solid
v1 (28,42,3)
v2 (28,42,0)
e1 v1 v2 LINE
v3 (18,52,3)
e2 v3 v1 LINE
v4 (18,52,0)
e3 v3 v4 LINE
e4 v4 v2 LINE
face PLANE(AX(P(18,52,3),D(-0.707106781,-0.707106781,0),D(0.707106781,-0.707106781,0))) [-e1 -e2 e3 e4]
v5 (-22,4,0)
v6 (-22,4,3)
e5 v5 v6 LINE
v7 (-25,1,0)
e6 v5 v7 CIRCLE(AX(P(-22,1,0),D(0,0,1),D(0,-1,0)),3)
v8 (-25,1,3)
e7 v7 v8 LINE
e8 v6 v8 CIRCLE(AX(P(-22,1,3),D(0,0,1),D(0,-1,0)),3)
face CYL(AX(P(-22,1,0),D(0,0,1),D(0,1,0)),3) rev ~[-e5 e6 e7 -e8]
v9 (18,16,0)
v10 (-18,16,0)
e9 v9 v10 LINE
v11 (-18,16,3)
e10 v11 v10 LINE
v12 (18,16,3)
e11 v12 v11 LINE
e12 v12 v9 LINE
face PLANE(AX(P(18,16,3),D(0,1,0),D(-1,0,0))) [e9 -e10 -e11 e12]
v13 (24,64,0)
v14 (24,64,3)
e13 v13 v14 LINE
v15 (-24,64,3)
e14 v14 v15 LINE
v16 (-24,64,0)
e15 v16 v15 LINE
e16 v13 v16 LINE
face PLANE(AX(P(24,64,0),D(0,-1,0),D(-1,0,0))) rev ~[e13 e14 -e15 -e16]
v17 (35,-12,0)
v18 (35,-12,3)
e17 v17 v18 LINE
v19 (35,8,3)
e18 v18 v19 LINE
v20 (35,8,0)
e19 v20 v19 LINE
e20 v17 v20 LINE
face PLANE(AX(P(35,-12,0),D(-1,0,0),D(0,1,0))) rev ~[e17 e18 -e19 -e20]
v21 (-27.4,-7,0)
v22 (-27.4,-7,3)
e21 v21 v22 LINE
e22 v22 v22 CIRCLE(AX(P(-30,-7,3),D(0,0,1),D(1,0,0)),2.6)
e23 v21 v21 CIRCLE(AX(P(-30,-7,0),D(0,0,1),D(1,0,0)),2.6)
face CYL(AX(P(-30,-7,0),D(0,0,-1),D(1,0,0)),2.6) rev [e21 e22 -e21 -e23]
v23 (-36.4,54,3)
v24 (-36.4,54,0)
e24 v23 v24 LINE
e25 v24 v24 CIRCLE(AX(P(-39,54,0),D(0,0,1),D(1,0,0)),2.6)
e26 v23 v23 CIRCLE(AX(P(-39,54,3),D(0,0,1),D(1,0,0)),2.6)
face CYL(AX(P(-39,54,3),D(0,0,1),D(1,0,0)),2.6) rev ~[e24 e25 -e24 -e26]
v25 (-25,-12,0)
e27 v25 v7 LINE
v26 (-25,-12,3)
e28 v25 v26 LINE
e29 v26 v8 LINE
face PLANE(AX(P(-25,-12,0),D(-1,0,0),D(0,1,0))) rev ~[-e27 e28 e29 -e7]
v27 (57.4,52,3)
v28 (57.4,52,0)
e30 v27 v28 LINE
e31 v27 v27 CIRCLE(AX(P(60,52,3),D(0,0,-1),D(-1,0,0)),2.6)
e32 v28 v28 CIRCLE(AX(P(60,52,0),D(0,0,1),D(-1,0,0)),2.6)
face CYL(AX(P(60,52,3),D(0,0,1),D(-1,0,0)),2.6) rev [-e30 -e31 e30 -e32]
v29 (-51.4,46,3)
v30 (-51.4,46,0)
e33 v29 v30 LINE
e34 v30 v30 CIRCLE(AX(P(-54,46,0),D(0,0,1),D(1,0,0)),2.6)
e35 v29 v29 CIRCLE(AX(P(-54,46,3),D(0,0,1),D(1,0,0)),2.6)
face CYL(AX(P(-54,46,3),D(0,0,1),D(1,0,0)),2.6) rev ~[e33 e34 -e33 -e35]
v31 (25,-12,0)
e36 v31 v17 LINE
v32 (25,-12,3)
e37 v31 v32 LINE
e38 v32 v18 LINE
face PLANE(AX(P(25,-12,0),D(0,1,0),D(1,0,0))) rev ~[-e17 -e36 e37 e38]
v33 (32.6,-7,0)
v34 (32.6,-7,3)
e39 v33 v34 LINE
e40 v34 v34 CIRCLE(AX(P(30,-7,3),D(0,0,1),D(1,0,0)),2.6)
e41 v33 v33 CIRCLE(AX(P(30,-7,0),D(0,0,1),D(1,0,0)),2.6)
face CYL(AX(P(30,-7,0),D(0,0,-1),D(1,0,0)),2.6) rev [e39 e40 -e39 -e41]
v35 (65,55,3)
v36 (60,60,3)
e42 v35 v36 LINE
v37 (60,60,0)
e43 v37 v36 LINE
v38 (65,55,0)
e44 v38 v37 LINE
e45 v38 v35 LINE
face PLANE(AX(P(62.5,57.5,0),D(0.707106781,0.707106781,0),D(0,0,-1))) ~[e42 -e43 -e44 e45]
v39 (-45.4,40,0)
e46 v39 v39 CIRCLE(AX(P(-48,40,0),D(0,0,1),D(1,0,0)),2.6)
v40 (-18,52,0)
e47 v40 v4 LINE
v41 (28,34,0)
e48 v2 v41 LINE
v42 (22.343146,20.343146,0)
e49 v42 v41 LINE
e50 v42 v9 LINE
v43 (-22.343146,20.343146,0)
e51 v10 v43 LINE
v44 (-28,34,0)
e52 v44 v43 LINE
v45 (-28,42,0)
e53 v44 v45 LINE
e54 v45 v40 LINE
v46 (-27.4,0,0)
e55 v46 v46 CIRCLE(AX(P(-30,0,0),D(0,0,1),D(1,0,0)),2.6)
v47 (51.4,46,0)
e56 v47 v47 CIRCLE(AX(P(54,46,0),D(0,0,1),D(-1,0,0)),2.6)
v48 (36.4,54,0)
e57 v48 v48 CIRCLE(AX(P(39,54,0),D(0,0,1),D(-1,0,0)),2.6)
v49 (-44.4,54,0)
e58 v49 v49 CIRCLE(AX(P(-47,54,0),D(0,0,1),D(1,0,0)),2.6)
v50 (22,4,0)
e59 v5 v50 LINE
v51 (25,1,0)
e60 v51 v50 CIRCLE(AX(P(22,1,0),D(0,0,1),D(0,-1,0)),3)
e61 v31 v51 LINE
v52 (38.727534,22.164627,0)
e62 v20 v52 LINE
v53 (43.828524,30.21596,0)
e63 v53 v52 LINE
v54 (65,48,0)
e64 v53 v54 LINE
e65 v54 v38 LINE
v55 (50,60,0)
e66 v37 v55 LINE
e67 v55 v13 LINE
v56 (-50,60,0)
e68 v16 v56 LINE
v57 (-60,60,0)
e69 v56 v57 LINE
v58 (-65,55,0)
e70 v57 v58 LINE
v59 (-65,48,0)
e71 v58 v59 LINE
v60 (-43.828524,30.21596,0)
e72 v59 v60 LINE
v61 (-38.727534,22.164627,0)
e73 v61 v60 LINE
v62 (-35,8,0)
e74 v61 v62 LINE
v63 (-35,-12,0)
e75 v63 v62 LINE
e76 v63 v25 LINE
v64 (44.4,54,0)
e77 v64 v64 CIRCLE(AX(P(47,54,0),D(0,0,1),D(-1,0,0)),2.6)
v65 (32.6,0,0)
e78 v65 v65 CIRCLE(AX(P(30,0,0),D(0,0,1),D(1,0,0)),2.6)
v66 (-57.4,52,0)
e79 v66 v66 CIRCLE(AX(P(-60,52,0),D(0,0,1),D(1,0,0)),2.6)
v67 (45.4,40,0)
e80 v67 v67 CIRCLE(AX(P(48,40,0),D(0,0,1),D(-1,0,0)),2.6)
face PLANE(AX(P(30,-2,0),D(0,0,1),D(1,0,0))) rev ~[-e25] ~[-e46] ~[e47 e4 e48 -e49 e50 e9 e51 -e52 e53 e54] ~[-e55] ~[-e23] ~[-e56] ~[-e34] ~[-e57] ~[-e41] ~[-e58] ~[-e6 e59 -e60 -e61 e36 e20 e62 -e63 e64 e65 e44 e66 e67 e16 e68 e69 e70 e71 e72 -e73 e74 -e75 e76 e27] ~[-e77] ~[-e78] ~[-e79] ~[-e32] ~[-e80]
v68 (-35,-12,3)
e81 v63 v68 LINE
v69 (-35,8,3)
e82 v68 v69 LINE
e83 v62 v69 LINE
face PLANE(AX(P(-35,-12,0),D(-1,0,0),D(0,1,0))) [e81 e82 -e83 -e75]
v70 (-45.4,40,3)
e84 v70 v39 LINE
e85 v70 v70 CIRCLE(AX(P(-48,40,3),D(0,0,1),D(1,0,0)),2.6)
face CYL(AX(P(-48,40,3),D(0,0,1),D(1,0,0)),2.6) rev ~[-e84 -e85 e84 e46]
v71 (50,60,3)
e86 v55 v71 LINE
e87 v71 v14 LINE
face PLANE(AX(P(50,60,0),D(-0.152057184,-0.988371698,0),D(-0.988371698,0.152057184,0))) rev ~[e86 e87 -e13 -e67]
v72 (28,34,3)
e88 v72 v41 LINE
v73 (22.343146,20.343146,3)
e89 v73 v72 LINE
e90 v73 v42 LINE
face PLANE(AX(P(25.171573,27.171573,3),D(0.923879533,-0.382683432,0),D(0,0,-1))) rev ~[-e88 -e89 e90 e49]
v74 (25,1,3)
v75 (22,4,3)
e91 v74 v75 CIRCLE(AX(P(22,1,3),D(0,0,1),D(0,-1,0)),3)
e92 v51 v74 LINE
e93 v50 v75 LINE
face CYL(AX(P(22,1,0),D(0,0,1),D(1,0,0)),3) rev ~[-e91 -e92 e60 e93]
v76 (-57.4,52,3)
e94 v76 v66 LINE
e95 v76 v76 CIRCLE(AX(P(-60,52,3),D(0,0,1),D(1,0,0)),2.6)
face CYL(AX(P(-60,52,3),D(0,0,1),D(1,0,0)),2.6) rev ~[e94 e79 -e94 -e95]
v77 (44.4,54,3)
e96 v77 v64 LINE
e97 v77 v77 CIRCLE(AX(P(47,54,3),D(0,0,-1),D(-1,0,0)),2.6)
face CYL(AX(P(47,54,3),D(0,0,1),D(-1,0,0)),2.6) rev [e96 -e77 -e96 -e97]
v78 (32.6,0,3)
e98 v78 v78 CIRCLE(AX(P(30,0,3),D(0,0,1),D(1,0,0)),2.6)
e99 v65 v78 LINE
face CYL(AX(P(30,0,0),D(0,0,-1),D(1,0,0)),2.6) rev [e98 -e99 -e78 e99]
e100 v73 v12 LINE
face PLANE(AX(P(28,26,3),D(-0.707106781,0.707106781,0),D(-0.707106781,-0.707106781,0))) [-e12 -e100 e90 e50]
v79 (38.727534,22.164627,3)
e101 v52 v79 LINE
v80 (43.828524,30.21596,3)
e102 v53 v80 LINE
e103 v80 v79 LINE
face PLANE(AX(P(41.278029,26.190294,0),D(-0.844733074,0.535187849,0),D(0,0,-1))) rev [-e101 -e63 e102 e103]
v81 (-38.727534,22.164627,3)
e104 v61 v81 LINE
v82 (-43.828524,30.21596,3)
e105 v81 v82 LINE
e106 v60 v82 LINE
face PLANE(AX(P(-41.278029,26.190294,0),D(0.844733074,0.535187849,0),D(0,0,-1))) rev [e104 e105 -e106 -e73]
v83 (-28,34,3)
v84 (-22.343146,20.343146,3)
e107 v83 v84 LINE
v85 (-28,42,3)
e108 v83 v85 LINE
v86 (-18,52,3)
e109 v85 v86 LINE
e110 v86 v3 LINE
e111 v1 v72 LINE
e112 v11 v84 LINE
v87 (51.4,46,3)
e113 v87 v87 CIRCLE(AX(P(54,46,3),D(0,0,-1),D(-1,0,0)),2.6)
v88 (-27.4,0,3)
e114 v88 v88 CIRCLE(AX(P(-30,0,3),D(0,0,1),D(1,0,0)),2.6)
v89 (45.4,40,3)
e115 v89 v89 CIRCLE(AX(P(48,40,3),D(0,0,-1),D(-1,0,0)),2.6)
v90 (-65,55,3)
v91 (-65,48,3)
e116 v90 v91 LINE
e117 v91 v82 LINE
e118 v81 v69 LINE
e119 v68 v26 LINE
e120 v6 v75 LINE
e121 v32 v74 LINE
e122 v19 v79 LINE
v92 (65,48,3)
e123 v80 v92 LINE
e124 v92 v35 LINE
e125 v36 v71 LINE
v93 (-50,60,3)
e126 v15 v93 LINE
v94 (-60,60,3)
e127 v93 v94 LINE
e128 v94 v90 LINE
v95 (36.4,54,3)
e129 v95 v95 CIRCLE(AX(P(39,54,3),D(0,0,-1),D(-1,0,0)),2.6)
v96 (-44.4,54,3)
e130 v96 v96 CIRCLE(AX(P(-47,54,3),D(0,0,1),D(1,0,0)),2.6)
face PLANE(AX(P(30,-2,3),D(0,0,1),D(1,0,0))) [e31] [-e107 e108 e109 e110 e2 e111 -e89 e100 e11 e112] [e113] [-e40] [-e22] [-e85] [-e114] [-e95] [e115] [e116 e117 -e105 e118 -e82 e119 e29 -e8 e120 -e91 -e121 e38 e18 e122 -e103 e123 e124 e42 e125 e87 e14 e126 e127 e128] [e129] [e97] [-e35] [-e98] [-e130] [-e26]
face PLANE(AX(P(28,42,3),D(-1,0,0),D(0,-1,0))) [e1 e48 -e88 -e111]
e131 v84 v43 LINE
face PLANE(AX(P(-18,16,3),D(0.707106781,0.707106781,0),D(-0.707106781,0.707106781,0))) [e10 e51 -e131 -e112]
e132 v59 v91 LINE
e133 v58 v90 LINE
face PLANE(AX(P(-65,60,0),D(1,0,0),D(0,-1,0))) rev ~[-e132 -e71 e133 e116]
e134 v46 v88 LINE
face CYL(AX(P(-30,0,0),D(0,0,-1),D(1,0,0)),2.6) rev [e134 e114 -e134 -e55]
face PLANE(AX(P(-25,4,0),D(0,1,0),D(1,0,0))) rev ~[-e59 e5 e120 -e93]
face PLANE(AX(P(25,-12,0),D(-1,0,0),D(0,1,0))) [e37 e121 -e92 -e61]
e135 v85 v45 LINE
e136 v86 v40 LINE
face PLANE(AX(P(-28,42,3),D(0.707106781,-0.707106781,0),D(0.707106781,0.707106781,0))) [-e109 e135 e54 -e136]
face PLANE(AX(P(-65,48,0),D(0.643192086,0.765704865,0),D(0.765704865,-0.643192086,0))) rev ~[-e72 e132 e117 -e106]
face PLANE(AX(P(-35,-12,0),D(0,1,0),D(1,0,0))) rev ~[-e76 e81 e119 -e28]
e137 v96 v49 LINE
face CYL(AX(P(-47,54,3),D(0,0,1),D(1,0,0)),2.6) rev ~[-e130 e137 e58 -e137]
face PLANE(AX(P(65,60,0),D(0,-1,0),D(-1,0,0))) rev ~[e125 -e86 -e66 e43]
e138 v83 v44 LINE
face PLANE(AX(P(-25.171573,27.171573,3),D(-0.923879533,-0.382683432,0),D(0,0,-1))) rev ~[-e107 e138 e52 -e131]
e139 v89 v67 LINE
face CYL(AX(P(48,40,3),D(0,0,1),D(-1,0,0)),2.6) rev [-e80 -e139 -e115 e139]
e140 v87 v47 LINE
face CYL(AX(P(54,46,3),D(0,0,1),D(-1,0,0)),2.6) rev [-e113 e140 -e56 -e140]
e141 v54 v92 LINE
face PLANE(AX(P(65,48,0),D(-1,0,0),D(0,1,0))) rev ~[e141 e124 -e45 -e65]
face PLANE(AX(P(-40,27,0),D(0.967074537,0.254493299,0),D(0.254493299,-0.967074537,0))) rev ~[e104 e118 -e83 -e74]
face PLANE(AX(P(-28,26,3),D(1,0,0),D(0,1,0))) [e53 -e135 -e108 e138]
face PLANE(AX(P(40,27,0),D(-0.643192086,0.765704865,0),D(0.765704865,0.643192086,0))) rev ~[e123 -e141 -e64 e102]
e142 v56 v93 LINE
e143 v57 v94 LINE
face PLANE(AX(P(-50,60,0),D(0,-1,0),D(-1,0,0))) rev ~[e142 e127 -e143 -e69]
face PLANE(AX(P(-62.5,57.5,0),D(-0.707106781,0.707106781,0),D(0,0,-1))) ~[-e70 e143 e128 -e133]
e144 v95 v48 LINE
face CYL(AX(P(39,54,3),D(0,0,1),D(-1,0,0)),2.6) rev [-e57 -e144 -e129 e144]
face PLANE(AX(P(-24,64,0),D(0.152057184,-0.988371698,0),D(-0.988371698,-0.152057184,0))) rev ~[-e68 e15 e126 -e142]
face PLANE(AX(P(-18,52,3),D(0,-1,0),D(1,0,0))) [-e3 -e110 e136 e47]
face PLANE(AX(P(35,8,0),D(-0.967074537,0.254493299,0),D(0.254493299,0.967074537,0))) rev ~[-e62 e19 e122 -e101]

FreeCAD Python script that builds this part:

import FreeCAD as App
import Part
import Sketcher

V = App.Vector
Q = App.Units.Quantity


def edges_at(feature, points):
    """Names of the edges that pass closest to the given points."""
    edges = feature.Shape.Edges
    near = lambda p: min(range(len(edges)), key=lambda i: edges[i].distToShape(Part.Vertex(*p))[0])
    return sorted({f"Edge{near(p) + 1}" for p in points})


def add_polygon(sketch, points):
    """Adds a closed chain of lines whose ends are joined by coincident constraints."""
    first, n = sketch.GeometryCount, len(points)
    for a, b in zip(points, points[1:] + points[:1]):
        sketch.addGeometry(Part.LineSegment(App.Vector(*a, 0), App.Vector(*b, 0)), False)
    for i in range(n):
        sketch.addConstraint(Sketcher.Constraint("Coincident", first + i, 2, first + (i + 1) % n, 1))

doc = App.newDocument("Part")
params = doc.addObject("Spreadsheet::Sheet", "Params")
for row, (alias, value) in enumerate([
    ("sketch1_diameter", "5.2 mm"),
    ("sketch1_width", "10 mm"),
    ("sketch1_width2", "50 mm"),
    ("sketch1_width3", "15 mm"),
    ("sketch1_width4", "48 mm"),
    ("pad1_length", "3 mm"),
    ("sketch2_width", "36 mm"),
    ("sketch2_height", "16 mm"),
    ("pocket1_length", "3 mm"),
    ("fillet_radius", "3 mm"),
    ("chamfer_size", "5 mm"),
    ("chamfer2_size", "5 mm"),
    ("chamfer3_size", "5 mm"),
    ("sketch3_diameter", "5.2 mm"),
    ("chamfer4_size", "8 mm"),
    ("chamfer5_size", "8 mm"),
], start=1):
    params.set(f"A{row}", alias)
    params.set(f"B{row}", "=" + value)
    params.setAlias(f"B{row}", alias)

body = doc.addObject("PartDesign::Body", "Body")

sketch1 = doc.addObject("Sketcher::SketchObject", "Sketch")
body.addObject(sketch1)
sketch1.AttachmentSupport = (doc.XY_Plane, [""])
sketch1.MapMode = "FlatFace"
add_polygon(sketch1, [(-40, 27), (-35, 8), (-35, -12), (-25, -12), (-25, 4), (25, 4), (25, -12), (35, -12), (35, 8), (40, 27), (65, 48), (65, 60), (50, 60), (24, 64), (-24, 64), (-50, 60), (-65, 60), (-65, 48)])
sketch1.addGeometry(Part.Circle(V(-30, 0, 0), V(0, 0, 1), 2.6), False)
sketch1.addGeometry(Part.Circle(V(-30, -7, 0), V(0, 0, 1), 2.6), False)
sketch1.addGeometry(Part.Circle(V(30, 0, 0), V(0, 0, 1), 2.6), False)
sketch1.addGeometry(Part.Circle(V(30, -7, 0), V(0, 0, 1), 2.6), False)
sketch1.addConstraint([
    Sketcher.Constraint("Vertical", 1),
    Sketcher.Constraint("Horizontal", 2),
    Sketcher.Constraint("Vertical", 3),
    Sketcher.Constraint("Horizontal", 4),
    Sketcher.Constraint("Vertical", 5),
    Sketcher.Constraint("Horizontal", 6),
    Sketcher.Constraint("Vertical", 7),
    Sketcher.Constraint("Vertical", 10),
    Sketcher.Constraint("Horizontal", 11),
    Sketcher.Constraint("Horizontal", 13),
    Sketcher.Constraint("Horizontal", 15),
    Sketcher.Constraint("Vertical", 16),
    Sketcher.Constraint("Equal", 18, 19),
    Sketcher.Constraint("Equal", 19, 20),
    Sketcher.Constraint("Equal", 20, 21),
    Sketcher.Constraint("Symmetric", 18, 3, 20, 3, -1, 1),
    Sketcher.Constraint("Symmetric", 19, 3, 21, 3, -2),
    Sketcher.Constraint("Symmetric", 2, 2, 5, 2, -2),
    Sketcher.Constraint("Symmetric", 0, 2, 7, 2, -2),
    Sketcher.Constraint("Symmetric", 11, 2, 14, 2, -2),
    Sketcher.Constraint("Symmetric", 9, 2, 16, 2, -2),
    Sketcher.Constraint("Symmetric", 8, 2, 17, 2, -2),
    Sketcher.Constraint("PointOnObject", 18, 3, -1),
    Sketcher.Constraint("Vertical", 18, 3, 19, 3),
    Sketcher.Constraint("Equal", 12, 14),
    Sketcher.Constraint("Diameter", 18, Q("5.2 mm")),
    Sketcher.Constraint("DistanceX", 2, 1, 2, 2, Q("10 mm")),
    Sketcher.Constraint("DistanceX", 4, 1, 4, 2, Q("50 mm")),
    Sketcher.Constraint("DistanceX", 11, 2, 11, 1, Q("15 mm")),
    Sketcher.Constraint("DistanceX", 13, 2, 13, 1, Q("48 mm")),
    Sketcher.Constraint("DistanceY", 1, 2, 1, 1, Q("20 mm")),
    Sketcher.Constraint("DistanceY", 3, 1, 3, 2, Q("16 mm")),
    Sketcher.Constraint("DistanceY", 10, 1, 10, 2, Q("12 mm")),
    Sketcher.Constraint("DistanceX", 18, 3, -1, 1, Q("30 mm")),
    Sketcher.Constraint("DistanceY", 19, 3, -1, 1, Q("7 mm")),
    Sketcher.Constraint("DistanceY", -1, 1, 0, 2, Q("8 mm")),
    Sketcher.Constraint("DistanceX", -1, 1, 8, 2, Q("40 mm")),
    Sketcher.Constraint("DistanceY", -1, 1, 8, 2, Q("27 mm")),
    Sketcher.Constraint("DistanceX", -1, 1, 9, 2, Q("65 mm")),
    Sketcher.Constraint("DistanceY", -1, 1, 9, 2, Q("48 mm")),
    Sketcher.Constraint("DistanceY", -1, 1, 12, 2, Q("64 mm")),
])
sketch1.setExpression("Constraints[43]", "Params.sketch1_diameter")
sketch1.setExpression("Constraints[44]", "Params.sketch1_width")
sketch1.setExpression("Constraints[45]", "Params.sketch1_width2")
sketch1.setExpression("Constraints[46]", "Params.sketch1_width3")
sketch1.setExpression("Constraints[47]", "Params.sketch1_width4")
pad1 = doc.addObject("PartDesign::Pad", "Pad")
body.addObject(pad1)
pad1.Profile = sketch1
pad1.setExpression("Length", "Params.pad1_length")

sketch2 = doc.addObject("Sketcher::SketchObject", "Sketch001")
body.addObject(sketch2)
sketch2.AttachmentSupport = (doc.XY_Plane, [""])
sketch2.MapMode = "FlatFace"
sketch2.AttachmentOffset = App.Placement(V(0, 0, 3), App.Rotation())
add_polygon(sketch2, [(18, 52), (-18, 52), (-28, 42), (-28, 26), (-18, 16), (18, 16), (28, 26), (28, 42)])
sketch2.addConstraint([
    Sketcher.Constraint("Horizontal", 0),
    Sketcher.Constraint("Vertical", 2),
    Sketcher.Constraint("Horizontal", 4),
    Sketcher.Constraint("Vertical", 6),
    Sketcher.Constraint("Symmetric", 2, 2, 5, 2, -2),
    Sketcher.Constraint("Perpendicular", 1, 3),
    Sketcher.Constraint("Perpendicular", 3, 5),
    Sketcher.Constraint("Perpendicular", 5, 7),
    Sketcher.Constraint("Horizontal", 1, 2, 6, 2),
    Sketcher.Constraint("Vertical", 0, 2, 3, 2),
    Sketcher.Constraint("Vertical", 4, 2, 7, 2),
    Sketcher.Constraint("DistanceX", 0, 2, 0, 1, Q("36 mm")),
    Sketcher.Constraint("DistanceY", 2, 2, 2, 1, Q("16 mm")),
    Sketcher.Constraint("DistanceY", -1, 1, 0, 2, Q("52 mm")),
    Sketcher.Constraint("DistanceX", 1, 2, -1, 1, Q("28 mm")),
])
sketch2.setExpression("Constraints[19]", "Params.sketch2_width")
sketch2.setExpression("Constraints[20]", "Params.sketch2_height")
pocket1 = doc.addObject("PartDesign::Pocket", "Pocket")
body.addObject(pocket1)
pocket1.Profile = sketch2
pocket1.setExpression("Length", "Params.pocket1_length")
doc.recompute()

fillet = doc.addObject("PartDesign::Fillet", "Fillet")
body.addObject(fillet)
fillet.Base = (pocket1, edges_at(pocket1, [(25, 4, 1.5), (-25, 4, 1.5)]))
fillet.setExpression("Radius", "Params.fillet_radius")
doc.recompute()

chamfer = doc.addObject("PartDesign::Chamfer", "Chamfer")
body.addObject(chamfer)
chamfer.Base = (fillet, edges_at(fillet, [(-40, 27, 1.5)]))
chamfer.setExpression("Size", "Params.chamfer_size")
doc.recompute()

chamfer2 = doc.addObject("PartDesign::Chamfer", "Chamfer001")
body.addObject(chamfer2)
chamfer2.Base = (chamfer, edges_at(chamfer, [(40, 27, 1.5)]))
chamfer2.setExpression("Size", "Params.chamfer2_size")
doc.recompute()

chamfer3 = doc.addObject("PartDesign::Chamfer", "Chamfer002")
body.addObject(chamfer3)
chamfer3.Base = (chamfer2, edges_at(chamfer2, [(-65, 60, 1.5), (65, 60, 1.5)]))
chamfer3.setExpression("Size", "Params.chamfer3_size")

sketch3 = doc.addObject("Sketcher::SketchObject", "Sketch002")
body.addObject(sketch3)
sketch3.AttachmentSupport = (doc.XY_Plane, [""])
sketch3.MapMode = "FlatFace"
sketch3.AttachmentOffset = App.Placement(V(0, 0, 3), App.Rotation())
sketch3.addGeometry([
    Part.Circle(V(-60, 52, 0), V(0, 0, 1), 2.6),
    Part.Circle(V(-54, 46, 0), V(0, 0, 1), 2.6),
    Part.Circle(V(-47, 54, 0), V(0, 0, 1), 2.6),
    Part.Circle(V(-48, 40, 0), V(0, 0, 1), 2.6),
    Part.Circle(V(-39, 54, 0), V(0, 0, 1), 2.6),
], False)
sketch3.addConstraint([
    Sketcher.Constraint("Equal", 0, 1),
    Sketcher.Constraint("Equal", 1, 2),
    Sketcher.Constraint("Equal", 2, 3),
    Sketcher.Constraint("Equal", 3, 4),
    Sketcher.Constraint("Horizontal", 2, 3, 4, 3),
    Sketcher.Constraint("Diameter", 0, Q("5.2 mm")),
    Sketcher.Constraint("DistanceX", 0, 3, -1, 1, Q("60 mm")),
    Sketcher.Constraint("DistanceY", -1, 1, 0, 3, Q("52 mm")),
    Sketcher.Constraint("DistanceX", 1, 3, -1, 1, Q("54 mm")),
    Sketcher.Constraint("DistanceY", -1, 1, 1, 3, Q("46 mm")),
    Sketcher.Constraint("DistanceX", 2, 3, -1, 1, Q("47 mm")),
    Sketcher.Constraint("DistanceY", -1, 1, 2, 3, Q("54 mm")),
    Sketcher.Constraint("DistanceX", 3, 3, -1, 1, Q("48 mm")),
    Sketcher.Constraint("DistanceY", -1, 1, 3, 3, Q("40 mm")),
    Sketcher.Constraint("DistanceX", 4, 3, -1, 1, Q("39 mm")),
])
sketch3.setExpression("Constraints[5]", "Params.sketch3_diameter")
pocket2 = doc.addObject("PartDesign::Pocket", "Pocket001")
body.addObject(pocket2)
pocket2.Profile = sketch3
pocket2.Type = "ThroughAll"
doc.recompute()

mirrored = doc.addObject("PartDesign::Mirrored", "Mirrored")
body.addObject(mirrored)
mirrored.Originals = [pocket2]
mirrored.MirrorPlane = (doc.YZ_Plane, [""])
body.Tip = mirrored
doc.recompute()

chamfer4 = doc.addObject("PartDesign::Chamfer", "Chamfer003")
body.addObject(chamfer4)
chamfer4.Base = (mirrored, edges_at(mirrored, [(-28, 26, 1.5)]))
chamfer4.setExpression("Size", "Params.chamfer4_size")
doc.recompute()

chamfer5 = doc.addObject("PartDesign::Chamfer", "Chamfer004")
body.addObject(chamfer5)
chamfer5.Base = (chamfer4, edges_at(chamfer4, [(28, 26, 1.5)]))
chamfer5.setExpression("Size", "Params.chamfer5_size")

doc.recompute()
